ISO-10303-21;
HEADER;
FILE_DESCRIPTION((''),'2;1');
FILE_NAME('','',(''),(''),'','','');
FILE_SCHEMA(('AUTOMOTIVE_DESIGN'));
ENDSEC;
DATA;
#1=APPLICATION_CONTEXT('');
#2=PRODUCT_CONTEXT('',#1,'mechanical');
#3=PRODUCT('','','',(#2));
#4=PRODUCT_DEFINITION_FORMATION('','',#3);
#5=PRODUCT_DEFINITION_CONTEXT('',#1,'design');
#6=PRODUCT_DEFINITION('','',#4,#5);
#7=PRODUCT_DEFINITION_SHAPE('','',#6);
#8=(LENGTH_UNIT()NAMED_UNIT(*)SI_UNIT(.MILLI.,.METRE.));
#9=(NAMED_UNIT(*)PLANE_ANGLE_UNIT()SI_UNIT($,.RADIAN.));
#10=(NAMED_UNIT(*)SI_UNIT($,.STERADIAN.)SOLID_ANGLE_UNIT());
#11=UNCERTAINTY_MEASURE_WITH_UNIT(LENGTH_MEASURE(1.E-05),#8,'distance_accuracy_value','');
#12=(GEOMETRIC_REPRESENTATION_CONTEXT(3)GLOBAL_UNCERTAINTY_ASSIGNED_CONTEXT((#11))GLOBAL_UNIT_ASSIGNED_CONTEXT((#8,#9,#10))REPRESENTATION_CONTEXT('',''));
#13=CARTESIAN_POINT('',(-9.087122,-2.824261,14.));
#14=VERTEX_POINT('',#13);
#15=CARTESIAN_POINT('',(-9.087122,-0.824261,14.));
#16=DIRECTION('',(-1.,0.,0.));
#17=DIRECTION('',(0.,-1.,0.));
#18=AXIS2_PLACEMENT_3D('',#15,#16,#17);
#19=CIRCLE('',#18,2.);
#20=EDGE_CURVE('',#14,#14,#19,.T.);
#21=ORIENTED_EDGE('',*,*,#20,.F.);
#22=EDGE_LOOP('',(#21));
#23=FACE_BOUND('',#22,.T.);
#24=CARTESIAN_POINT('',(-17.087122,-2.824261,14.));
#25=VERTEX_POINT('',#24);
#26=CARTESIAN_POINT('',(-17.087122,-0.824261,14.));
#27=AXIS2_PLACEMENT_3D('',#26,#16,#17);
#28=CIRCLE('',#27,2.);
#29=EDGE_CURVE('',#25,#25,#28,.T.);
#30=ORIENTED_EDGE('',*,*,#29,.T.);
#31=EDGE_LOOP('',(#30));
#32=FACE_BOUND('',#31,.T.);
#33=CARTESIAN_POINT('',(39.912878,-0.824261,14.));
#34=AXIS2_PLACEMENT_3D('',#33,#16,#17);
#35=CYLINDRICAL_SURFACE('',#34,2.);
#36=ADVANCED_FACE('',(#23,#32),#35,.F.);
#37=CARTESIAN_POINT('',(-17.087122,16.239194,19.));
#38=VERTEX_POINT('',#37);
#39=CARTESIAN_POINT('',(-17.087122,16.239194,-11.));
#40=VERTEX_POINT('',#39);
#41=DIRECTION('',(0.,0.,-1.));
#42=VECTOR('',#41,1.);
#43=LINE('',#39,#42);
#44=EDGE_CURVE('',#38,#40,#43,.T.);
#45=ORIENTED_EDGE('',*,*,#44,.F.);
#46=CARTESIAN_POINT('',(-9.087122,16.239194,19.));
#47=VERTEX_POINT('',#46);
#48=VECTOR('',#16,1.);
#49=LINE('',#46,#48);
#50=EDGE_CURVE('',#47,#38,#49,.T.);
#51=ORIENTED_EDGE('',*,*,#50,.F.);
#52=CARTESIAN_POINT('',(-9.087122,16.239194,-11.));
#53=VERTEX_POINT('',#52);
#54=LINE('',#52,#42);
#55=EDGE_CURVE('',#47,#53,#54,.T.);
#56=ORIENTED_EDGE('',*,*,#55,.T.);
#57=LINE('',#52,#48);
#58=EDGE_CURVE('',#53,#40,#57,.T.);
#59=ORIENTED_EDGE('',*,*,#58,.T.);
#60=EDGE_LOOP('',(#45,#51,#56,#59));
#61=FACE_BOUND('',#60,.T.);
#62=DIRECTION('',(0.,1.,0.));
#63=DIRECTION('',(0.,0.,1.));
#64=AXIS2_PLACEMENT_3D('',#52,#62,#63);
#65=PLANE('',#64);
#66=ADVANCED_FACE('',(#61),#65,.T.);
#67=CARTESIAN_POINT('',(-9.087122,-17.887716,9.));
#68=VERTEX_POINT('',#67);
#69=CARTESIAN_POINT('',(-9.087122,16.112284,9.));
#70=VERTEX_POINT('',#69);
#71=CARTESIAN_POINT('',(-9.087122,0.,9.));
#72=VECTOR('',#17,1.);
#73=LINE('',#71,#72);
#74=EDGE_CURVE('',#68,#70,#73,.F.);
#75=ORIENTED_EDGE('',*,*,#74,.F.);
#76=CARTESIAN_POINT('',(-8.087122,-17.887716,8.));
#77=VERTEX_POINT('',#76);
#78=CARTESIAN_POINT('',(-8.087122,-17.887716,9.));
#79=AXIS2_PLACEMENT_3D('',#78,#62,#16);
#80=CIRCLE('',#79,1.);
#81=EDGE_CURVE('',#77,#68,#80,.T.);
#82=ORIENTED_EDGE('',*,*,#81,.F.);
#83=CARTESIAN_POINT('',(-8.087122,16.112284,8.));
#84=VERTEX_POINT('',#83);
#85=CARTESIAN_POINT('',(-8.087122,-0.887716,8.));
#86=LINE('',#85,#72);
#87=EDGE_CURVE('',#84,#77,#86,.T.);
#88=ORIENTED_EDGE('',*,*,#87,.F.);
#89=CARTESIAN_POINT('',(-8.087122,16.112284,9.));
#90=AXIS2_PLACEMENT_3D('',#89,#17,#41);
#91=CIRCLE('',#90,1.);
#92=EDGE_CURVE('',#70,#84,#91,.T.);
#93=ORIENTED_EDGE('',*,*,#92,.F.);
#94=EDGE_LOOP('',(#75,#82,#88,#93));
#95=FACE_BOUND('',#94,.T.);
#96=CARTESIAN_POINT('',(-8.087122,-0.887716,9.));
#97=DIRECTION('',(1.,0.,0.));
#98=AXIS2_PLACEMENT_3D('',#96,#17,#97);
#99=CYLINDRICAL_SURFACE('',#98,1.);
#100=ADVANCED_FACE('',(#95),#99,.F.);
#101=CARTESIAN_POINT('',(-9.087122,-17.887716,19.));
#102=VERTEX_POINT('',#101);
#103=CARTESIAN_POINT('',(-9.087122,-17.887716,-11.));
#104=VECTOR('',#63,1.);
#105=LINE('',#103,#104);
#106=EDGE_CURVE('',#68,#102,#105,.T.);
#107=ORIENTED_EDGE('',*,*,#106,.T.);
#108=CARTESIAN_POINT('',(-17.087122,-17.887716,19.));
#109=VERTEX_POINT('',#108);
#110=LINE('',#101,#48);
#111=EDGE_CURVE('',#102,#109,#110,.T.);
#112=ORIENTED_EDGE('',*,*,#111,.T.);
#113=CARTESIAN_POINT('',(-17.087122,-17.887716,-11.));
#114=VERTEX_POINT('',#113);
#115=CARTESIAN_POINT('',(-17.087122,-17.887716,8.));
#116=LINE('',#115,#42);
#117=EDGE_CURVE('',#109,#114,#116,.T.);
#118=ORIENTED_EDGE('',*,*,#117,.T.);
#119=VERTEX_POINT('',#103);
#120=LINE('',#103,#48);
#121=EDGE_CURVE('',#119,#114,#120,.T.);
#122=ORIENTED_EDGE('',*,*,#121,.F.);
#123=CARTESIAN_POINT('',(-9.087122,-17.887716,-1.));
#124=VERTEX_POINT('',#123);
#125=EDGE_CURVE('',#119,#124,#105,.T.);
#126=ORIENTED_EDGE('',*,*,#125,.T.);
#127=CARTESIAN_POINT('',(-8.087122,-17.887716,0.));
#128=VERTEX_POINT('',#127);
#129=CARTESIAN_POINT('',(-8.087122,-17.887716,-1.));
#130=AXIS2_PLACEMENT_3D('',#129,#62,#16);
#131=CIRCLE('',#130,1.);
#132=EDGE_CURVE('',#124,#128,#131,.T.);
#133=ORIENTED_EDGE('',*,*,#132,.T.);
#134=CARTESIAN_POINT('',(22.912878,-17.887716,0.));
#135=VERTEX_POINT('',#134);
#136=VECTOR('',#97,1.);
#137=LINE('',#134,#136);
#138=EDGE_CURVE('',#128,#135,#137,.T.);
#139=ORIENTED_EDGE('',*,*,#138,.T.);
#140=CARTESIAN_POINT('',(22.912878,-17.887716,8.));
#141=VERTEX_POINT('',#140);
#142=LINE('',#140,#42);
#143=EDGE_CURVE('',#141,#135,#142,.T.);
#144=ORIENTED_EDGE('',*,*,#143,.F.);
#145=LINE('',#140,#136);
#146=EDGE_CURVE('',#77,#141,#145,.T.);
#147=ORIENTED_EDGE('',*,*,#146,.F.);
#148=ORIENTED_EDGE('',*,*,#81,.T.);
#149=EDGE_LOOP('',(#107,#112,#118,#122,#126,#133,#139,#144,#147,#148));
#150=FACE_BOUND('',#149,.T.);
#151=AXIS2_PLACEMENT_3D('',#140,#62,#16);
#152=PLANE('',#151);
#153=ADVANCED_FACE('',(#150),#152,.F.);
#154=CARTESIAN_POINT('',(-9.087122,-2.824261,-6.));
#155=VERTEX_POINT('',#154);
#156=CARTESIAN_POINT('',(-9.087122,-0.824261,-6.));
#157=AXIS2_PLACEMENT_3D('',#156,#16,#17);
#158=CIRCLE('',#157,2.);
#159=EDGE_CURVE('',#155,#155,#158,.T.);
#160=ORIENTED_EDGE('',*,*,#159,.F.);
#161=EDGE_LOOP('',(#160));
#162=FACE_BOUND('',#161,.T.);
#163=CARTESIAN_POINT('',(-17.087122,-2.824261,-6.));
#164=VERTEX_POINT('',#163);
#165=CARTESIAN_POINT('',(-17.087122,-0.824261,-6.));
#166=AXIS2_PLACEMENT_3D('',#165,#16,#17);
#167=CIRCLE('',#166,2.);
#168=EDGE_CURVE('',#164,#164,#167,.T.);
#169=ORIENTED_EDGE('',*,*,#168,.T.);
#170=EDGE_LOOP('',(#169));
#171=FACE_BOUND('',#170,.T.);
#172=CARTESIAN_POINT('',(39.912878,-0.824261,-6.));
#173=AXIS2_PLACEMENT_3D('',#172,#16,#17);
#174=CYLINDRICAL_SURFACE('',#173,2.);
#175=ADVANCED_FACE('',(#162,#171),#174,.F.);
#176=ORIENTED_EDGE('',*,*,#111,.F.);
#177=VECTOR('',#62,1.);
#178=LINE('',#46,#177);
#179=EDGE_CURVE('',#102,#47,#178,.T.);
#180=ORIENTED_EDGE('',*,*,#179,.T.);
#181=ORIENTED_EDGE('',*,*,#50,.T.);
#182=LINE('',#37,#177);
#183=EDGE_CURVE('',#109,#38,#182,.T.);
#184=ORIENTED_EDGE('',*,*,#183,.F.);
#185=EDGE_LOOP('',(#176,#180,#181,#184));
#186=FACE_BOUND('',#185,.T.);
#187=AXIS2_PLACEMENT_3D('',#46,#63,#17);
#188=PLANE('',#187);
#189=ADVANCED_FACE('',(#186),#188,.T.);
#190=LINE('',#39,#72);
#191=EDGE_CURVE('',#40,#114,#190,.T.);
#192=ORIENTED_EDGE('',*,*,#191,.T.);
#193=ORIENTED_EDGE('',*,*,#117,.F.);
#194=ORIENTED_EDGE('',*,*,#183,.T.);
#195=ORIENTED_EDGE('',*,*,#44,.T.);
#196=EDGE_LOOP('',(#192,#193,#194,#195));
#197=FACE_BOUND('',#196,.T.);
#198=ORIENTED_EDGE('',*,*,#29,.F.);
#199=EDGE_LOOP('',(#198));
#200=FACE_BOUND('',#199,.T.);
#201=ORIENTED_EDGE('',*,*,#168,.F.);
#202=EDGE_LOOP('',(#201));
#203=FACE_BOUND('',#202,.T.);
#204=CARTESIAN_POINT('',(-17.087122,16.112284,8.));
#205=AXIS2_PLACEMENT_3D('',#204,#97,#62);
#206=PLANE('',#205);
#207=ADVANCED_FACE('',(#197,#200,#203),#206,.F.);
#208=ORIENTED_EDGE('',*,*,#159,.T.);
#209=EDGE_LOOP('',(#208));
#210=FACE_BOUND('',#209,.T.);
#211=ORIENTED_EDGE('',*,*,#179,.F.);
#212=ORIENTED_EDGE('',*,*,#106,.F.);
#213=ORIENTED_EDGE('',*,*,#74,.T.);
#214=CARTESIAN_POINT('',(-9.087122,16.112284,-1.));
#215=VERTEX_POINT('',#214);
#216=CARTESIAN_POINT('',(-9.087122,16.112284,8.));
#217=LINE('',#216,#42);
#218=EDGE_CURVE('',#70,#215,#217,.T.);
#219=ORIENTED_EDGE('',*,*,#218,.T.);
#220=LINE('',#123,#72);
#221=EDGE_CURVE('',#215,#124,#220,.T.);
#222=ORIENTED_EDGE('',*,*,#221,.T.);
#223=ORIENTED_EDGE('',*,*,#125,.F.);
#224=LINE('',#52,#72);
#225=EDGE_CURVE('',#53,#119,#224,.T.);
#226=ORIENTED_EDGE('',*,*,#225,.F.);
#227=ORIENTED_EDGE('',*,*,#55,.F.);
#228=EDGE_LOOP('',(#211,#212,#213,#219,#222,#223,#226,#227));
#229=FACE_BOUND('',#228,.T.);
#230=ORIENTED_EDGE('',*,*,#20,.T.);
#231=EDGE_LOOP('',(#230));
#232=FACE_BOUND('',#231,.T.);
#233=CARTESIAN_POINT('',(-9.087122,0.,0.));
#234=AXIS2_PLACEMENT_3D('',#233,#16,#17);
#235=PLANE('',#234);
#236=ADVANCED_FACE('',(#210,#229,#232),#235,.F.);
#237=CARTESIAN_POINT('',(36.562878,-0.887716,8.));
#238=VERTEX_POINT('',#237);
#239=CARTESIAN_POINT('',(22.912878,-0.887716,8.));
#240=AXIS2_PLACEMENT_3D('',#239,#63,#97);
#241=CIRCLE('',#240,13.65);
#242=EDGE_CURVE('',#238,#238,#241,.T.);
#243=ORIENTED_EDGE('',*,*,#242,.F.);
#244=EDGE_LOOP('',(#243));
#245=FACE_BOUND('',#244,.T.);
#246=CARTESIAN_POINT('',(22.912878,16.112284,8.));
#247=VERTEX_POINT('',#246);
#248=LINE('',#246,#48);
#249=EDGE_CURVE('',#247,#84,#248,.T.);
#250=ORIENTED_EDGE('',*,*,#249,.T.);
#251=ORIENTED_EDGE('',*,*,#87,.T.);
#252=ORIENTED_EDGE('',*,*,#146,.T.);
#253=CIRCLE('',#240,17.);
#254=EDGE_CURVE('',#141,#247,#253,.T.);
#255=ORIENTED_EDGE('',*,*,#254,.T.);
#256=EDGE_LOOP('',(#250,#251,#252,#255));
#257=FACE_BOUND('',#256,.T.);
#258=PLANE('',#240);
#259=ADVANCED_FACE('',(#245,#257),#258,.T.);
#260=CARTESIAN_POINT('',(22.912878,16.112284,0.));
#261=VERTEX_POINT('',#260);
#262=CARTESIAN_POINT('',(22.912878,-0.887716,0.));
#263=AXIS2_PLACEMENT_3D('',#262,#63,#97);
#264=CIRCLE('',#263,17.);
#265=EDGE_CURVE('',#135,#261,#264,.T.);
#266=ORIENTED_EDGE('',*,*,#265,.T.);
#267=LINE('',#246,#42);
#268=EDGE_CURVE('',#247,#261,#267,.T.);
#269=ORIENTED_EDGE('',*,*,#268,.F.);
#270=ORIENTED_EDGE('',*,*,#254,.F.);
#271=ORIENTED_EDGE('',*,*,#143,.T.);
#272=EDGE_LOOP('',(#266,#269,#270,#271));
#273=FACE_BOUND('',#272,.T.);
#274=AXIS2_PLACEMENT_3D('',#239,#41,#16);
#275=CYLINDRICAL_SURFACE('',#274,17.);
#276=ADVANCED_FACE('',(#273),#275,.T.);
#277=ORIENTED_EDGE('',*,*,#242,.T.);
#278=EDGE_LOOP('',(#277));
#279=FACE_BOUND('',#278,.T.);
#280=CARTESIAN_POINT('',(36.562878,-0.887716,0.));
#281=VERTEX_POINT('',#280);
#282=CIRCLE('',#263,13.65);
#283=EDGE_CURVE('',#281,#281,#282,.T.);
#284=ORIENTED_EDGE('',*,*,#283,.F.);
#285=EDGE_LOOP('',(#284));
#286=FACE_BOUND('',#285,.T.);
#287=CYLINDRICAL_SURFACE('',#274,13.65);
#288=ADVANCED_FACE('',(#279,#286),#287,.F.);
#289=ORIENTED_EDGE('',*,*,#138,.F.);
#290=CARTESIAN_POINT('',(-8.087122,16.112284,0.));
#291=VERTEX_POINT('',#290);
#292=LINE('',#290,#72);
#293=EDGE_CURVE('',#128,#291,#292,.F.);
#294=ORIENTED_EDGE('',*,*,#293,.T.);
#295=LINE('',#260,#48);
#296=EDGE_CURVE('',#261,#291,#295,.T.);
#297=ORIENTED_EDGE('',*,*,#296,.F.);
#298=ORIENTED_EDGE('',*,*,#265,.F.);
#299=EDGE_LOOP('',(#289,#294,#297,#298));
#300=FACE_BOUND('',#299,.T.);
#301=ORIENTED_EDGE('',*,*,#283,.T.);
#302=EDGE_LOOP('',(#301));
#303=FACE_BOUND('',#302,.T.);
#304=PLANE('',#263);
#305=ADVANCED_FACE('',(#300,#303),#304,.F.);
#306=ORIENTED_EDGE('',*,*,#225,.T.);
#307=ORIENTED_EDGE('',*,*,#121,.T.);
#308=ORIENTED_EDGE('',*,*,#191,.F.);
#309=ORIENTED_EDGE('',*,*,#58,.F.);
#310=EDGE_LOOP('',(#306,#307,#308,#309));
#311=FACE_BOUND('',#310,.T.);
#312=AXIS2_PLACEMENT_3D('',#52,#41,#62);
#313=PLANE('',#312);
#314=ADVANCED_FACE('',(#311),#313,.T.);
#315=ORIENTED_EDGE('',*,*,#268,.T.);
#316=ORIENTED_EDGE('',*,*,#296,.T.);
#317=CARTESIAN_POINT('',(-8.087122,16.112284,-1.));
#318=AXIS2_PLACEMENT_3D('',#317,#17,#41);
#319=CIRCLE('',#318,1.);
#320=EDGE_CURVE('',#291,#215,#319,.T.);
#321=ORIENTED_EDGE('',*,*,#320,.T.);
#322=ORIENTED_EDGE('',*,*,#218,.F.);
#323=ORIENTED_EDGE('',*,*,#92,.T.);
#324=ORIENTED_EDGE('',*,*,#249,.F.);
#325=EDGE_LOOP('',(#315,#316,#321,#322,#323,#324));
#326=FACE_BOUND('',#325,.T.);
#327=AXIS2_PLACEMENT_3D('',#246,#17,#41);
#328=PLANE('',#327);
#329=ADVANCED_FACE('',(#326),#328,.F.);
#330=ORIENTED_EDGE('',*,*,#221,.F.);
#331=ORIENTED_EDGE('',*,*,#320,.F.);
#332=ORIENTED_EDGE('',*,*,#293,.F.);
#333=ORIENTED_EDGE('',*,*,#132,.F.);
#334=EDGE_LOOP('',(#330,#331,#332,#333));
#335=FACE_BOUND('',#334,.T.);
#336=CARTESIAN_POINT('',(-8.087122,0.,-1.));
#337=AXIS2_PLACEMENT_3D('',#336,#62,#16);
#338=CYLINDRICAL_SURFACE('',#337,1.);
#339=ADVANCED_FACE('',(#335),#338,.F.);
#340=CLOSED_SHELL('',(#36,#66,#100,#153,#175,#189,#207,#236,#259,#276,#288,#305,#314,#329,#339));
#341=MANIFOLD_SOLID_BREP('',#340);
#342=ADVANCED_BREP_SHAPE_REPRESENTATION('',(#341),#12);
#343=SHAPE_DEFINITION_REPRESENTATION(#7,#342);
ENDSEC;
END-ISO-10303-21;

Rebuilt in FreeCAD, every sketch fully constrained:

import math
import FreeCAD as App
import Part
import Sketcher
from FreeCAD import Vector


def edges_at(feature, points):
    """Names of the edges that pass closest to the given points."""
    edges = feature.Shape.Edges
    near = lambda p: min(range(len(edges)), key=lambda i: edges[i].distToShape(Part.Vertex(*p))[0])
    return sorted({f"Edge{near(p) + 1}" for p in points})

doc = App.newDocument("Part")
body = doc.addObject("PartDesign::Body", "Body")

sketch1 = body.newObject("Sketcher::SketchObject", "Sketch")
sketch1.AttachmentSupport = (doc.getObject("XY_Plane"), [""])
sketch1.MapMode = "FlatFace"
sketch1.addGeometry([
    Part.LineSegment(Vector(23, 16, 0), Vector(-17, 16, 0)),
    Part.LineSegment(Vector(-17, 16, 0), Vector(-17, -18, 0)),
    Part.LineSegment(Vector(-17, -18, 0), Vector(23, -18, 0)),
    Part.ArcOfCircle(Part.Circle(Vector(23, -1, 0), Vector(0, 0, 1), 17), math.radians(-90), math.radians(90)),
    Part.Circle(Vector(23, -1, 0), Vector(0, 0, 1), 14),
], False)
sketch1.addConstraint([
    Sketcher.Constraint("Coincident", 0, 2, 1, 1),
    Sketcher.Constraint("Coincident", 1, 2, 2, 1),
    Sketcher.Constraint("Tangent", 2, 2, 3, 1),
    Sketcher.Constraint("Tangent", 3, 2, 0, 1),
    Sketcher.Constraint("Horizontal", 0),
    Sketcher.Constraint("Vertical", 1),
    Sketcher.Constraint("Horizontal", 2),
    Sketcher.Constraint("Coincident", 4, 3, 3, 3),
    Sketcher.Constraint("Radius", 3, 17.0),
    Sketcher.Constraint("Diameter", 4, 27.3),
    Sketcher.Constraint("DistanceX", 0, 2, 0, 1, 40.0),
    Sketcher.Constraint("DistanceX", -1, 1, 3, 3, 22.912878),
    Sketcher.Constraint("DistanceY", 3, 3, -1, 1, 0.887716),
])
pad1 = body.newObject("PartDesign::Pad", "Pad")
pad1.Profile = sketch1
pad1.Length = 8

sketch2 = body.newObject("Sketcher::SketchObject", "Sketch001")
sketch2.AttachmentSupport = (doc.getObject("YZ_Plane"), [""])
sketch2.MapMode = "FlatFace"
sketch2.AttachmentOffset = App.Placement(Vector(0, 0, -17.087122), App.Rotation())
sketch2.addGeometry([
    Part.LineSegment(Vector(16, -11, 0), Vector(-18, -11, 0)),
    Part.LineSegment(Vector(-18, -11, 0), Vector(-18, 19, 0)),
    Part.LineSegment(Vector(-18, 19, 0), Vector(16, 19, 0)),
    Part.LineSegment(Vector(16, 19, 0), Vector(16, -11, 0)),
], False)
sketch2.addConstraint([
    Sketcher.Constraint("Coincident", 0, 2, 1, 1),
    Sketcher.Constraint("Coincident", 1, 2, 2, 1),
    Sketcher.Constraint("Coincident", 2, 2, 3, 1),
    Sketcher.Constraint("Coincident", 3, 2, 0, 1),
    Sketcher.Constraint("Horizontal", 0),
    Sketcher.Constraint("Vertical", 1),
    Sketcher.Constraint("Horizontal", 2),
    Sketcher.Constraint("Vertical", 3),
    Sketcher.Constraint("DistanceY", 1, 1, 1, 2, 30.0),
    Sketcher.Constraint("DistanceY", 0, 2, -1, 1, 11.0),
    Sketcher.Constraint("DistanceX", 0, 2, 0, 1, 34.12691),
    Sketcher.Constraint("DistanceX", 0, 2, -1, 1, 17.887716),
])
pad2 = body.newObject("PartDesign::Pad", "Pad001")
pad2.Profile = sketch2
pad2.Length = 8
doc.recompute()

fillet = body.newObject("PartDesign::Fillet", "Fillet")
fillet.Base = (pad2, edges_at(pad2, [(-9.087, -0.888, 8), (-9.087, -0.888, 0)]))
fillet.Radius = 1

sketch3 = body.newObject("Sketcher::SketchObject", "Sketch002")
sketch3.AttachmentSupport = (doc.getObject("YZ_Plane"), [""])
sketch3.MapMode = "FlatFace"
sketch3.AttachmentOffset = App.Placement(Vector(0, 0, -17.087122), App.Rotation())
sketch3.addGeometry([
    Part.Circle(Vector(-0.8, -6, 0), Vector(0, 0, 1), 2),
    Part.Circle(Vector(-0.8, 14, 0), Vector(0, 0, 1), 2),
], False)
sketch3.addConstraint([
    Sketcher.Constraint("Equal", 0, 1),
    Sketcher.Constraint("Vertical", 0, 3, 1, 3),
    Sketcher.Constraint("Diameter", 0, 4.0),
    Sketcher.Constraint("DistanceY", 0, 3, -1, 1, 6.0),
    Sketcher.Constraint("DistanceY", -1, 1, 1, 3, 14.0),
    Sketcher.Constraint("DistanceX", 0, 3, -1, 1, 0.824261),
])
pocket1 = body.newObject("PartDesign::Pocket", "Pocket")
pocket1.Profile = sketch3
pocket1.Type = "ThroughAll"
pocket1.Reversed = True

doc.recompute()
